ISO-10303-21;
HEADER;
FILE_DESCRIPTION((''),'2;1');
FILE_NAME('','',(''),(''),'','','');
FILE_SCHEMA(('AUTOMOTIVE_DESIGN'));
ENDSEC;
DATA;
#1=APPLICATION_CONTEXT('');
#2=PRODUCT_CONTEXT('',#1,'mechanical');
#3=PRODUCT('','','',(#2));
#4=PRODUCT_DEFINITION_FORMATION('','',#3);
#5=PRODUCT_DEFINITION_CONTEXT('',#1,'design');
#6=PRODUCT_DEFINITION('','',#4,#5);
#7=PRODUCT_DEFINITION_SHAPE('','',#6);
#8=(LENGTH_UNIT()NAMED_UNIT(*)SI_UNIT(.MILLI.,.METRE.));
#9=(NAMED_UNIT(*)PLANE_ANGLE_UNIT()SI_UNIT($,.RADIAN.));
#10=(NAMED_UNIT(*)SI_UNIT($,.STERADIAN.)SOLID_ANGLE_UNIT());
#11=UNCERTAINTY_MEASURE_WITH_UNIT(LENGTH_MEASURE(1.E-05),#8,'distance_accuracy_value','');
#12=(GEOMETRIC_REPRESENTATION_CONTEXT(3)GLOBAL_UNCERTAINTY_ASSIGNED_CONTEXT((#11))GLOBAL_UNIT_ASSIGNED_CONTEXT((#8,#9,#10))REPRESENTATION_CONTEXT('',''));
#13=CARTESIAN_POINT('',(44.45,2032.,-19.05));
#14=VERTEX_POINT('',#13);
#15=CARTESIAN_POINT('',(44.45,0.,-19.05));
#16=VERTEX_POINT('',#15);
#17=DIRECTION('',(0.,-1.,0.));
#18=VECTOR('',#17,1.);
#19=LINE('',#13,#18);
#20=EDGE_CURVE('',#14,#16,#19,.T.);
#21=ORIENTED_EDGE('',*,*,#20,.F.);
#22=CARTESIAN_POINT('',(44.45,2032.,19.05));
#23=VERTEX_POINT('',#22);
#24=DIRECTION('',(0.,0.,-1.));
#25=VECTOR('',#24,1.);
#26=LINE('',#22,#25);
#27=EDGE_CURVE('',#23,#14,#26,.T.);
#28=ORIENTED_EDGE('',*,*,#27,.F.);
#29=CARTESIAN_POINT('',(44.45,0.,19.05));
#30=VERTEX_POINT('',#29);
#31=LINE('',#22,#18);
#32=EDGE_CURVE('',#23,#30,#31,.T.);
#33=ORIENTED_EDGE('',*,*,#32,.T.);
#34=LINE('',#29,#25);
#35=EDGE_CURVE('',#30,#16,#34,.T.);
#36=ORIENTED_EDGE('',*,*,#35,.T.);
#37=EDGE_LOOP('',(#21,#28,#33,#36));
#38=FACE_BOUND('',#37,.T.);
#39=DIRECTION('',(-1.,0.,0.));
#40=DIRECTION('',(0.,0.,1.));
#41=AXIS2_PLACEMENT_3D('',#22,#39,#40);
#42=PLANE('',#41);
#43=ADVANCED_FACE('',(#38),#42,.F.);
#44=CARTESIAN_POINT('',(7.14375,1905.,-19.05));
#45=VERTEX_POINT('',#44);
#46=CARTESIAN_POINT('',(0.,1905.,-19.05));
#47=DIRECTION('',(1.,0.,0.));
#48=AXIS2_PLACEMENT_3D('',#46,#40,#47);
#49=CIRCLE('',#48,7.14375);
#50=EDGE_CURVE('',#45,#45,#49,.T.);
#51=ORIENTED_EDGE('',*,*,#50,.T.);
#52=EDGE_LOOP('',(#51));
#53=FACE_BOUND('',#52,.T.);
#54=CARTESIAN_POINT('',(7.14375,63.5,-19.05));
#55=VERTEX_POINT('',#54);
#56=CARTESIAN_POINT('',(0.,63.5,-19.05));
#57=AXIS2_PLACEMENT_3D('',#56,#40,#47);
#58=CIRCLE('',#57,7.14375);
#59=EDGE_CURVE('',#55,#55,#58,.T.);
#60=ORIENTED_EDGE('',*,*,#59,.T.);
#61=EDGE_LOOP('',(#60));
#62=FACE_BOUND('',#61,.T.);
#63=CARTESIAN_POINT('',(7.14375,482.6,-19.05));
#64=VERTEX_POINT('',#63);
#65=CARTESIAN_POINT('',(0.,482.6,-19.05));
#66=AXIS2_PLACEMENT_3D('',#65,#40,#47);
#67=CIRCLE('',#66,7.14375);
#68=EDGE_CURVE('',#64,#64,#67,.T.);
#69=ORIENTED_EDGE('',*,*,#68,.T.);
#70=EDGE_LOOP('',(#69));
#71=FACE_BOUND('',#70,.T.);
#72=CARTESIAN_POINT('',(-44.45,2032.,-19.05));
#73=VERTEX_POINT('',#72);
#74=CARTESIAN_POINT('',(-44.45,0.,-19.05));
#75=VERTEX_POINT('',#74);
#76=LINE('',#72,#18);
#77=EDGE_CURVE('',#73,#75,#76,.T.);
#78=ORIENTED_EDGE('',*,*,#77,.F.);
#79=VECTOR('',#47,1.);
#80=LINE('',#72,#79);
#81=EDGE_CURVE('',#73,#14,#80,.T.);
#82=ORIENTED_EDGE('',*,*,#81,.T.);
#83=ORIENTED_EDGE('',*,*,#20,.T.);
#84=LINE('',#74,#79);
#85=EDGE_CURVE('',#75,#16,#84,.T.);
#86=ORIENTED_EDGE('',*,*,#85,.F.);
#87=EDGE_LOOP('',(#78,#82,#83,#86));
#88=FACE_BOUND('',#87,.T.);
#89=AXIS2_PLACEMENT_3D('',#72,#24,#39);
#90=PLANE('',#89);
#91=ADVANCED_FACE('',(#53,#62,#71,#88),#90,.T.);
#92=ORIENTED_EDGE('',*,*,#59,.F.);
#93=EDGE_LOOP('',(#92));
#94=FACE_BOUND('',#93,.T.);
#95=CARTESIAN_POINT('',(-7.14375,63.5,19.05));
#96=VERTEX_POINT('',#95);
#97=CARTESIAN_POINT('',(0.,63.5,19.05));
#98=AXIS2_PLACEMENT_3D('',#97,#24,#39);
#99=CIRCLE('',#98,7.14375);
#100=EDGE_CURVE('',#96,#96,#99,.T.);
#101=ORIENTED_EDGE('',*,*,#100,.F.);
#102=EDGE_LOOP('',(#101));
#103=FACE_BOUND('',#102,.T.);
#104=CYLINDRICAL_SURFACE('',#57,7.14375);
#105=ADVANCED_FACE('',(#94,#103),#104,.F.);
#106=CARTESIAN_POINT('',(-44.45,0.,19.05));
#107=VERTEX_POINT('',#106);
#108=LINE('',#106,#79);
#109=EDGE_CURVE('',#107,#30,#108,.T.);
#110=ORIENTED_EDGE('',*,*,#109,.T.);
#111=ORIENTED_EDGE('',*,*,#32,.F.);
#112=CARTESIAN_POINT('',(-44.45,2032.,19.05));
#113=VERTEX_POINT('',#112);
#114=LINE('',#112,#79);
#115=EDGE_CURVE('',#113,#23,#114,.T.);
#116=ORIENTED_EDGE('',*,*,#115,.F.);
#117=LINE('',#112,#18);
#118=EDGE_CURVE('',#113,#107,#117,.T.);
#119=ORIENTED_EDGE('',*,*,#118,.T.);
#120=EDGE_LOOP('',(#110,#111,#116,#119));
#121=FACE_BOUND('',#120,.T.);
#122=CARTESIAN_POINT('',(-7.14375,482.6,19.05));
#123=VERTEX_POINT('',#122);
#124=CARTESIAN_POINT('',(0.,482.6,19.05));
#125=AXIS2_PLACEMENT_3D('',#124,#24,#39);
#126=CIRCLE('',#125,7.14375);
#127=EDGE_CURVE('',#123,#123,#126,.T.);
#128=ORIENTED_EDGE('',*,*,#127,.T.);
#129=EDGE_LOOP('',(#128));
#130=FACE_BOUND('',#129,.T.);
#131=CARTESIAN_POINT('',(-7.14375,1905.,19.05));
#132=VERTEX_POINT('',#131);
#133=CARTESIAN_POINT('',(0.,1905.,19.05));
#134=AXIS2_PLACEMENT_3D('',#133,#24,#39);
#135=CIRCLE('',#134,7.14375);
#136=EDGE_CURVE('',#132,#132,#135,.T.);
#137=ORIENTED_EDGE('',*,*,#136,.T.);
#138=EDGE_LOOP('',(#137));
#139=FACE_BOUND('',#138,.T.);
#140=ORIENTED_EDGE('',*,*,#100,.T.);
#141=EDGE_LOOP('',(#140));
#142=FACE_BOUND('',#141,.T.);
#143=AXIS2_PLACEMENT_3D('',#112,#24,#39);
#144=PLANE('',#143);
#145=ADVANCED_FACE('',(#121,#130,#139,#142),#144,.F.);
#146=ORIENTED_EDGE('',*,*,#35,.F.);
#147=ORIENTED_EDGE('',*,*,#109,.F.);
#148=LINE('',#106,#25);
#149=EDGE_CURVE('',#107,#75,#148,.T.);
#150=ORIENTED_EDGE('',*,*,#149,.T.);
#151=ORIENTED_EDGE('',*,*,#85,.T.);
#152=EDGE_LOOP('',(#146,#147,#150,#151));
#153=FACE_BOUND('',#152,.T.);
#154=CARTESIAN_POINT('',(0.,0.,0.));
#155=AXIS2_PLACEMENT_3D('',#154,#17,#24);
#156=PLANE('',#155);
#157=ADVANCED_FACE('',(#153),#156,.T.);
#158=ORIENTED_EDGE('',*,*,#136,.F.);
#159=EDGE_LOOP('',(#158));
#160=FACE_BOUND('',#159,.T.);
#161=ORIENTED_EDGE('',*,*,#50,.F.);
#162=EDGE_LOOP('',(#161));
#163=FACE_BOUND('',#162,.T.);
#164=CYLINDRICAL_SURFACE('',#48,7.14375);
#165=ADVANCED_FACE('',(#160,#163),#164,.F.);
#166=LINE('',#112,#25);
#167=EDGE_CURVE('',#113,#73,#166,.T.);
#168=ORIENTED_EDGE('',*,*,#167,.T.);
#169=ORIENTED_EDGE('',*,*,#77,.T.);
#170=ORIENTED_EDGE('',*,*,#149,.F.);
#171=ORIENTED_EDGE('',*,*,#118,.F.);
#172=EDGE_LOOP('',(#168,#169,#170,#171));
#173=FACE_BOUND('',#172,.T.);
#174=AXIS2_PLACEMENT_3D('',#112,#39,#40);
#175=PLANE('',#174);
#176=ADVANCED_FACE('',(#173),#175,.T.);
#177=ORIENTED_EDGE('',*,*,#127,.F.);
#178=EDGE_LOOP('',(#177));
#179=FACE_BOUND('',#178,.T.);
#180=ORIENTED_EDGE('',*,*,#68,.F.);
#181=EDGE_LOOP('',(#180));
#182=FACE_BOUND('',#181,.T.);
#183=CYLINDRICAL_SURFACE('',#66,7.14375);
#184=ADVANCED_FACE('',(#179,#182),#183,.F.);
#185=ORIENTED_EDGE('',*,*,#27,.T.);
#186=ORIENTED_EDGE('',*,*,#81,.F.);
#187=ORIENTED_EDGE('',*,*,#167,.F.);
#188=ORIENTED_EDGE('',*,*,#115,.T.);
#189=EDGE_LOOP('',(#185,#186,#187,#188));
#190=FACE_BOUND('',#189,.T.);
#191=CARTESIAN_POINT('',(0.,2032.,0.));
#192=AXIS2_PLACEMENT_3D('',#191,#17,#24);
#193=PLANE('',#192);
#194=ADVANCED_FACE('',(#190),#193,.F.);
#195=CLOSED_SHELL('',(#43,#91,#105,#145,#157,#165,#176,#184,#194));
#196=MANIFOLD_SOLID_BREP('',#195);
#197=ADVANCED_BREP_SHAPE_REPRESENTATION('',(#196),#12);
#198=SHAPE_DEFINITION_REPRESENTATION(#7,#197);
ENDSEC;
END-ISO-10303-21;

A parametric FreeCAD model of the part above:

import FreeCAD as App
import Part
import Sketcher
from FreeCAD import Vector
Q = App.Units.Quantity

doc = App.newDocument("Part")
body = doc.addObject("PartDesign::Body", "Body")

# Sketch on XZ plane
sketch1 = body.newObject("Sketcher::SketchObject", "Sketch")
sketch1.AttachmentSupport = (doc.getObject("XZ_Plane"), [""])
sketch1.MapMode = "FlatFace"
sketch1.addGeometry(Part.LineSegment(Vector(-44, -19, 0), Vector(-44, 19, 0)), False)
sketch1.addGeometry(Part.LineSegment(Vector(-44, 19, 0), Vector(44, 19, 0)), False)
sketch1.addGeometry(Part.LineSegment(Vector(44, 19, 0), Vector(44, -19, 0)), False)
sketch1.addGeometry(Part.LineSegment(Vector(44, -19, 0), Vector(-44, -19, 0)), False)
sketch1.addConstraint(Sketcher.Constraint("Coincident", 0, 2, 1, 1))
sketch1.addConstraint(Sketcher.Constraint("Coincident", 1, 2, 2, 1))
sketch1.addConstraint(Sketcher.Constraint("Coincident", 2, 2, 3, 1))
sketch1.addConstraint(Sketcher.Constraint("Coincident", 3, 2, 0, 1))
sketch1.addConstraint(Sketcher.Constraint("Vertical", 0))
sketch1.addConstraint(Sketcher.Constraint("Horizontal", 1))
sketch1.addConstraint(Sketcher.Constraint("Vertical", 2))
sketch1.addConstraint(Sketcher.Constraint("Horizontal", 3))
sketch1.addConstraint(Sketcher.Constraint("Symmetric", 0, 2, 2, 2, -1, 1))
sketch1.addConstraint(Sketcher.Constraint("DistanceX", 1, 1, 1, 2, Q("3.5 in")))
sketch1.addConstraint(Sketcher.Constraint("DistanceY", 0, 1, 0, 2, Q("1.5 in")))
pad1 = body.newObject("PartDesign::Pad", "Pad")
pad1.Profile = sketch1
pad1.Length = Q("80 in")
pad1.Reversed = True

# Sketch on XY plane
sketch2 = body.newObject("Sketcher::SketchObject", "Sketch001")
sketch2.AttachmentSupport = (doc.getObject("XY_Plane"), [""])
sketch2.MapMode = "FlatFace"
sketch2.AttachmentOffset = App.Placement(Vector(0, 0, 0.75 * 25.4), App.Rotation())
sketch2.addGeometry(Part.Circle(Vector(0, 64, 0), Vector(0, 0, 1), 7), False)
sketch2.addGeometry(Part.Circle(Vector(0, 483, 0), Vector(0, 0, 1), 7), False)
sketch2.addGeometry(Part.Circle(Vector(0, 1905, 0), Vector(0, 0, 1), 7), False)
sketch2.addConstraint(Sketcher.Constraint("Equal", 0, 1))
sketch2.addConstraint(Sketcher.Constraint("Equal", 1, 2))
sketch2.addConstraint(Sketcher.Constraint("PointOnObject", 0, 3, -2))
sketch2.addConstraint(Sketcher.Constraint("PointOnObject", 1, 3, -2))
sketch2.addConstraint(Sketcher.Constraint("PointOnObject", 2, 3, -2))
sketch2.addConstraint(Sketcher.Constraint("Diameter", 0, Q("0.5625 in")))
sketch2.addConstraint(Sketcher.Constraint("DistanceY", -1, 1, 1, 3, Q("19 in")))
sketch2.addConstraint(Sketcher.Constraint("DistanceY", -1, 1, 2, 3, Q("75 in")))
sketch2.addConstraint(Sketcher.Constraint("DistanceY", -1, 1, 0, 3, Q("2.5 in")))
pocket1 = body.newObject("PartDesign::Pocket", "Pocket")
pocket1.Profile = sketch2
pocket1.Type = "ThroughAll"
pocket1.Midplane = True

doc.recompute()
